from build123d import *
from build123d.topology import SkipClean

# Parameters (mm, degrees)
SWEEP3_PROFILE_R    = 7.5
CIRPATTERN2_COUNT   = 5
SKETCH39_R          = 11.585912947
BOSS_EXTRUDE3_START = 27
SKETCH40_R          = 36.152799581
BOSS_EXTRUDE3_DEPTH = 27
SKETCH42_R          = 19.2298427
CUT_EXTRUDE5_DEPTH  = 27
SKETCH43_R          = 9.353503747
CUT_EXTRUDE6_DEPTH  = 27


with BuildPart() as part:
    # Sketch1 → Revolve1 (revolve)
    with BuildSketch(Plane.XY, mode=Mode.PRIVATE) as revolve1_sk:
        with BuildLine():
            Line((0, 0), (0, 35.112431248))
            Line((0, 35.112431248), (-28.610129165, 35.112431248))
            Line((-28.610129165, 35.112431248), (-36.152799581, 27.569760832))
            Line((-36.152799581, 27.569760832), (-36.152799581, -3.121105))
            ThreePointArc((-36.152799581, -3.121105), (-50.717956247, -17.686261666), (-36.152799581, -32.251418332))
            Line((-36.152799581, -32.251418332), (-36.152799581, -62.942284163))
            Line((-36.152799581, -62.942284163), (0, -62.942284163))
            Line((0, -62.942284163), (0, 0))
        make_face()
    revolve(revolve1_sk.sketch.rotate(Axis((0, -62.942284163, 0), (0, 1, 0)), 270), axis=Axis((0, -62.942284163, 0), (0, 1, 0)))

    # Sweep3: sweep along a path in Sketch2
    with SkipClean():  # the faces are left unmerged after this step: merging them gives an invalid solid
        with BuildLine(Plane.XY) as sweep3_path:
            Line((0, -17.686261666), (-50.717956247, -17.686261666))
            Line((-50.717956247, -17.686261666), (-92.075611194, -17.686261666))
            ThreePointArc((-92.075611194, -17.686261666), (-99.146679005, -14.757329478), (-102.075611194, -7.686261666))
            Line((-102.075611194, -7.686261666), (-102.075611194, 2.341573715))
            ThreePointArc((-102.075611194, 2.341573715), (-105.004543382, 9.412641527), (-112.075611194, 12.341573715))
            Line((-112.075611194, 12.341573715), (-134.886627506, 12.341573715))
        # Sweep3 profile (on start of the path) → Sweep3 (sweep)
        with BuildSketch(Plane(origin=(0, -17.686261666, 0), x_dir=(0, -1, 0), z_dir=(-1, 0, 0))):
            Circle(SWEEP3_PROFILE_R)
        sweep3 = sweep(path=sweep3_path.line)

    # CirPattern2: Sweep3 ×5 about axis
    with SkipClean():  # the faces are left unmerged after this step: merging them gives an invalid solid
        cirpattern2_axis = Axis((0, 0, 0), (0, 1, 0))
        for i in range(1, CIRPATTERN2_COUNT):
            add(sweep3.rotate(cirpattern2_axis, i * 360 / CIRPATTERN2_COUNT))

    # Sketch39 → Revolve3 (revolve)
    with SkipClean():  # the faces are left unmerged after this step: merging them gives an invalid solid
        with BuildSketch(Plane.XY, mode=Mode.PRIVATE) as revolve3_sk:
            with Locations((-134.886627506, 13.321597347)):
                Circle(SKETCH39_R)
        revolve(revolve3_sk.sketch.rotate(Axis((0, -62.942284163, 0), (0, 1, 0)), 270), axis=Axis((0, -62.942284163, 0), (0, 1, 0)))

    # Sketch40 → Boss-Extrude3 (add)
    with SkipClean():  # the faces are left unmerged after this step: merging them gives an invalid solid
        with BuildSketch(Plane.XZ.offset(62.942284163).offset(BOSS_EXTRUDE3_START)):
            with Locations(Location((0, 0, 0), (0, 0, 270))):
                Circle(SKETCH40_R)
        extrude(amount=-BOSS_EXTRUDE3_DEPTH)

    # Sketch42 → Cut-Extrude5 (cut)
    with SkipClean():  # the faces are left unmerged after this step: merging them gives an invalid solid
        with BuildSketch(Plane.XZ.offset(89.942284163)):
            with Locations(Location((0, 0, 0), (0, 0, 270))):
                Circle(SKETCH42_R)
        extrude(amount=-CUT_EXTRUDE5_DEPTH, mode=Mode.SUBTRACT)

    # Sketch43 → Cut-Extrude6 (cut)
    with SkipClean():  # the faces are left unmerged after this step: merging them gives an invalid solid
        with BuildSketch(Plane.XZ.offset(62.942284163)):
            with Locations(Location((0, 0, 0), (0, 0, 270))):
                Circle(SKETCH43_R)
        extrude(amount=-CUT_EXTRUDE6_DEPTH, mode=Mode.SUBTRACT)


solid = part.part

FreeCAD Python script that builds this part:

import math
import FreeCAD as App
import Part
import Sketcher
from FreeCAD import Vector
Q = App.Units.Quantity

doc = App.newDocument("Part")
body = doc.addObject("PartDesign::Body", "Body")

# Sketch on XY plane
sketch1 = body.newObject("Sketcher::SketchObject", "Sketch")
sketch1.AttachmentSupport = (doc.getObject("XY_Plane"), [""])
sketch1.MapMode = "FlatFace"
sketch1.addGeometry([
    Part.LineSegment(Vector(0, 35.112431, 0), Vector(-28.610129, 35.112431, 0)),  # 0
    Part.LineSegment(Vector(-28.610129, 35.112431, 0), Vector(-36.1528, 27.569761, 0)),  # 1
    Part.LineSegment(Vector(-36.1528, 27.569761, 0), Vector(-36.1528, -3.121105, 0)),  # 2
    Part.ArcOfCircle(Part.Circle(Vector(-36.1528, -17.686262, 0), Vector(0, 0, 1), 14.565157), math.radians(90), math.radians(270)),  # 3
    Part.LineSegment(Vector(-36.1528, -32.251418, 0), Vector(-36.1528, -62.942284, 0)),  # 4
    Part.LineSegment(Vector(-36.1528, -62.942284, 0), Vector(0, -62.942284, 0)),  # 5
    Part.LineSegment(Vector(0, -62.942284, 0), Vector(0, 35.112431, 0)),  # 6
], False)
sketch1.addConstraint([
    Sketcher.Constraint("Coincident", 0, 2, 1, 1),
    Sketcher.Constraint("Coincident", 1, 2, 2, 1),
    Sketcher.Constraint("Coincident", 2, 2, 3, 1),
    Sketcher.Constraint("Coincident", 3, 2, 4, 1),
    Sketcher.Constraint("Coincident", 4, 2, 5, 1),
    Sketcher.Constraint("Coincident", 5, 2, 6, 1),
    Sketcher.Constraint("Coincident", 6, 2, 0, 1),
    Sketcher.Constraint("Horizontal", 0),
    Sketcher.Constraint("Vertical", 2),
    Sketcher.Constraint("Vertical", 4),
    Sketcher.Constraint("Horizontal", 5),
    Sketcher.Constraint("Vertical", 6),
    Sketcher.Constraint("PointOnObject", 5, 2, -2),
    Sketcher.Constraint("Vertical", 3, 3, 1, 2),
    Sketcher.Constraint("Vertical", 2, 2, 3, 2),
    Sketcher.Constraint("Equal", 2, 4),
    Sketcher.Constraint("Angle", 1, Q("-135 deg")),
    Sketcher.Constraint("DistanceX", 5, 1, 5, 2, 36.1528),
    Sketcher.Constraint("Radius", 3, 14.565157),
    Sketcher.Constraint("DistanceX", 0, 2, 0, 1, 28.610129),
    Sketcher.Constraint("DistanceY", 2, 2, 2, 1, 30.690866),
    Sketcher.Constraint("DistanceY", 3, 3, -1, 1, 17.686262),
])
revolution = body.newObject("PartDesign::Revolution", "Revolution")
revolution.Profile = sketch1
revolution.ReferenceAxis = (sketch1, ["V_Axis"])
revolution.Angle = 360

# Sketch on YZ plane
sketch2 = body.newObject("Sketcher::SketchObject", "Sketch001")
sketch2.AttachmentSupport = (doc.getObject("YZ_Plane"), [""])
sketch2.MapMode = "FlatFace"
sketch2.addGeometry(Part.Circle(Vector(-17.686262, 0, 0), Vector(0, 0, 1), 7.5), False)
sketch2.addConstraint([
    Sketcher.Constraint("PointOnObject", 0, 3, -1),
    Sketcher.Constraint("Diameter", 0, 15.0),
    Sketcher.Constraint("DistanceX", 0, 3, -1, 1, 17.686262),
])

# Sketch on XY plane
sketch3 = body.newObject("Sketcher::SketchObject", "Sketch002")
sketch3.AttachmentSupport = (doc.getObject("XY_Plane"), [""])
sketch3.MapMode = "FlatFace"
sketch3.addGeometry([
    Part.LineSegment(Vector(0, -17.686262, 0), Vector(-50.717956, -17.686262, 0)),  # 0
    Part.LineSegment(Vector(-50.717956, -17.686262, 0), Vector(-92.075611, -17.686262, 0)),  # 1
    Part.ArcOfCircle(Part.Circle(Vector(-92.075611, -7.686262, 0), Vector(0, 0, 1), 10), math.radians(-180), math.radians(-90)),  # 2
    Part.LineSegment(Vector(-102.075611, -7.686262, 0), Vector(-102.075611, 2.341574, 0)),  # 3
    Part.ArcOfCircle(Part.Circle(Vector(-112.075611, 2.341574, 0), Vector(0, 0, 1), 10), math.radians(0), math.radians(90)),  # 4
    Part.LineSegment(Vector(-112.075611, 12.341574, 0), Vector(-134.886628, 12.341574, 0)),  # 5
], False)
sketch3.addConstraint([
    Sketcher.Constraint("Coincident", 0, 2, 1, 1),
    Sketcher.Constraint("Tangent", 1, 2, 2, 2),
    Sketcher.Constraint("Tangent", 2, 1, 3, 1),
    Sketcher.Constraint("Tangent", 3, 2, 4, 1),
    Sketcher.Constraint("Tangent", 4, 2, 5, 1),
    Sketcher.Constraint("Horizontal", 0),
    Sketcher.Constraint("Horizontal", 1),
    Sketcher.Constraint("Vertical", 3),
    Sketcher.Constraint("Horizontal", 5),
    Sketcher.Constraint("Equal", 2, 4),
    Sketcher.Constraint("PointOnObject", 0, 1, -2),
    Sketcher.Constraint("Radius", 2, 10.0),
    Sketcher.Constraint("DistanceX", 0, 2, 0, 1, 50.717956),
    Sketcher.Constraint("DistanceX", 1, 2, 1, 1, 41.357655),
    Sketcher.Constraint("DistanceX", 5, 2, 5, 1, 22.811016),
    Sketcher.Constraint("DistanceY", 3, 1, 3, 2, 10.027835),
    Sketcher.Constraint("DistanceY", 2, 3, -1, 1, 7.686262),
])
doc.recompute()

additivepipe = body.newObject("PartDesign::AdditivePipe", "AdditivePipe")
additivepipe.Profile = sketch2
additivepipe.Spine = (sketch3, ["Edge1", "Edge2", "Edge3", "Edge4", "Edge5", "Edge6"])
doc.recompute()

polarpattern = body.newObject("PartDesign::PolarPattern", "PolarPattern")
polarpattern.Originals = [additivepipe]
polarpattern.Axis = (doc.getObject("Y_Axis"), [""])
polarpattern.Angle = 360
polarpattern.Occurrences = 5
body.Tip = polarpattern

# Sketch on XY plane
sketch4 = body.newObject("Sketcher::SketchObject", "Sketch003")
sketch4.AttachmentSupport = (doc.getObject("XY_Plane"), [""])
sketch4.MapMode = "FlatFace"
sketch4.addGeometry(Part.Circle(Vector(-134.886628, 13.321597, 0), Vector(0, 0, 1), 11.585913), False)
sketch4.addConstraint([
    Sketcher.Constraint("Diameter", 0, 23.171826),
    Sketcher.Constraint("DistanceX", 0, 3, -1, 1, 134.886628),
    Sketcher.Constraint("DistanceY", -1, 1, 0, 3, 13.321597),
])
revolution2 = body.newObject("PartDesign::Revolution", "Revolution001")
revolution2.Profile = sketch4
revolution2.ReferenceAxis = (sketch4, ["V_Axis"])
revolution2.Angle = 360

# Sketch on XZ plane
sketch5 = body.newObject("Sketcher::SketchObject", "Sketch004")
sketch5.AttachmentSupport = (doc.getObject("XZ_Plane"), [""])
sketch5.MapMode = "FlatFace"
sketch5.AttachmentOffset = App.Placement(Vector(0, 0, 89.942284), App.Rotation())
sketch5.addGeometry(Part.Circle(Vector(0, 0, 0), Vector(0, 0, 1), 36.1528), False)
sketch5.addConstraint([
    Sketcher.Constraint("Coincident", 0, 3, -1, 1),
    Sketcher.Constraint("Diameter", 0, 72.305599),
])
pad1 = body.newObject("PartDesign::Pad", "Pad")
pad1.Profile = sketch5
pad1.Length = 27
pad1.Reversed = True

# Sketch on XZ plane
sketch6 = body.newObject("Sketcher::SketchObject", "Sketch005")
sketch6.AttachmentSupport = (doc.getObject("XZ_Plane"), [""])
sketch6.MapMode = "FlatFace"
sketch6.AttachmentOffset = App.Placement(Vector(0, 0, 89.942284), App.Rotation())
sketch6.addGeometry(Part.Circle(Vector(0, 0, 0), Vector(0, 0, 1), 19.229843), False)
sketch6.addConstraint([
    Sketcher.Constraint("Coincident", 0, 3, -1, 1),
    Sketcher.Constraint("Diameter", 0, 38.459685),
])
pocket1 = body.newObject("PartDesign::Pocket", "Pocket")
pocket1.Profile = sketch6
pocket1.Length = 27

# Sketch on XZ plane
sketch7 = body.newObject("Sketcher::SketchObject", "Sketch006")
sketch7.AttachmentSupport = (doc.getObject("XZ_Plane"), [""])
sketch7.MapMode = "FlatFace"
sketch7.AttachmentOffset = App.Placement(Vector(0, 0, 62.942284), App.Rotation())
sketch7.addGeometry(Part.Circle(Vector(0, 0, 0), Vector(0, 0, 1), 9.353504), False)
sketch7.addConstraint([
    Sketcher.Constraint("Coincident", 0, 3, -1, 1),
    Sketcher.Constraint("Diameter", 0, 18.707007),
])
pocket2 = body.newObject("PartDesign::Pocket", "Pocket001")
pocket2.Profile = sketch7
pocket2.Length = 27

doc.recompute()
